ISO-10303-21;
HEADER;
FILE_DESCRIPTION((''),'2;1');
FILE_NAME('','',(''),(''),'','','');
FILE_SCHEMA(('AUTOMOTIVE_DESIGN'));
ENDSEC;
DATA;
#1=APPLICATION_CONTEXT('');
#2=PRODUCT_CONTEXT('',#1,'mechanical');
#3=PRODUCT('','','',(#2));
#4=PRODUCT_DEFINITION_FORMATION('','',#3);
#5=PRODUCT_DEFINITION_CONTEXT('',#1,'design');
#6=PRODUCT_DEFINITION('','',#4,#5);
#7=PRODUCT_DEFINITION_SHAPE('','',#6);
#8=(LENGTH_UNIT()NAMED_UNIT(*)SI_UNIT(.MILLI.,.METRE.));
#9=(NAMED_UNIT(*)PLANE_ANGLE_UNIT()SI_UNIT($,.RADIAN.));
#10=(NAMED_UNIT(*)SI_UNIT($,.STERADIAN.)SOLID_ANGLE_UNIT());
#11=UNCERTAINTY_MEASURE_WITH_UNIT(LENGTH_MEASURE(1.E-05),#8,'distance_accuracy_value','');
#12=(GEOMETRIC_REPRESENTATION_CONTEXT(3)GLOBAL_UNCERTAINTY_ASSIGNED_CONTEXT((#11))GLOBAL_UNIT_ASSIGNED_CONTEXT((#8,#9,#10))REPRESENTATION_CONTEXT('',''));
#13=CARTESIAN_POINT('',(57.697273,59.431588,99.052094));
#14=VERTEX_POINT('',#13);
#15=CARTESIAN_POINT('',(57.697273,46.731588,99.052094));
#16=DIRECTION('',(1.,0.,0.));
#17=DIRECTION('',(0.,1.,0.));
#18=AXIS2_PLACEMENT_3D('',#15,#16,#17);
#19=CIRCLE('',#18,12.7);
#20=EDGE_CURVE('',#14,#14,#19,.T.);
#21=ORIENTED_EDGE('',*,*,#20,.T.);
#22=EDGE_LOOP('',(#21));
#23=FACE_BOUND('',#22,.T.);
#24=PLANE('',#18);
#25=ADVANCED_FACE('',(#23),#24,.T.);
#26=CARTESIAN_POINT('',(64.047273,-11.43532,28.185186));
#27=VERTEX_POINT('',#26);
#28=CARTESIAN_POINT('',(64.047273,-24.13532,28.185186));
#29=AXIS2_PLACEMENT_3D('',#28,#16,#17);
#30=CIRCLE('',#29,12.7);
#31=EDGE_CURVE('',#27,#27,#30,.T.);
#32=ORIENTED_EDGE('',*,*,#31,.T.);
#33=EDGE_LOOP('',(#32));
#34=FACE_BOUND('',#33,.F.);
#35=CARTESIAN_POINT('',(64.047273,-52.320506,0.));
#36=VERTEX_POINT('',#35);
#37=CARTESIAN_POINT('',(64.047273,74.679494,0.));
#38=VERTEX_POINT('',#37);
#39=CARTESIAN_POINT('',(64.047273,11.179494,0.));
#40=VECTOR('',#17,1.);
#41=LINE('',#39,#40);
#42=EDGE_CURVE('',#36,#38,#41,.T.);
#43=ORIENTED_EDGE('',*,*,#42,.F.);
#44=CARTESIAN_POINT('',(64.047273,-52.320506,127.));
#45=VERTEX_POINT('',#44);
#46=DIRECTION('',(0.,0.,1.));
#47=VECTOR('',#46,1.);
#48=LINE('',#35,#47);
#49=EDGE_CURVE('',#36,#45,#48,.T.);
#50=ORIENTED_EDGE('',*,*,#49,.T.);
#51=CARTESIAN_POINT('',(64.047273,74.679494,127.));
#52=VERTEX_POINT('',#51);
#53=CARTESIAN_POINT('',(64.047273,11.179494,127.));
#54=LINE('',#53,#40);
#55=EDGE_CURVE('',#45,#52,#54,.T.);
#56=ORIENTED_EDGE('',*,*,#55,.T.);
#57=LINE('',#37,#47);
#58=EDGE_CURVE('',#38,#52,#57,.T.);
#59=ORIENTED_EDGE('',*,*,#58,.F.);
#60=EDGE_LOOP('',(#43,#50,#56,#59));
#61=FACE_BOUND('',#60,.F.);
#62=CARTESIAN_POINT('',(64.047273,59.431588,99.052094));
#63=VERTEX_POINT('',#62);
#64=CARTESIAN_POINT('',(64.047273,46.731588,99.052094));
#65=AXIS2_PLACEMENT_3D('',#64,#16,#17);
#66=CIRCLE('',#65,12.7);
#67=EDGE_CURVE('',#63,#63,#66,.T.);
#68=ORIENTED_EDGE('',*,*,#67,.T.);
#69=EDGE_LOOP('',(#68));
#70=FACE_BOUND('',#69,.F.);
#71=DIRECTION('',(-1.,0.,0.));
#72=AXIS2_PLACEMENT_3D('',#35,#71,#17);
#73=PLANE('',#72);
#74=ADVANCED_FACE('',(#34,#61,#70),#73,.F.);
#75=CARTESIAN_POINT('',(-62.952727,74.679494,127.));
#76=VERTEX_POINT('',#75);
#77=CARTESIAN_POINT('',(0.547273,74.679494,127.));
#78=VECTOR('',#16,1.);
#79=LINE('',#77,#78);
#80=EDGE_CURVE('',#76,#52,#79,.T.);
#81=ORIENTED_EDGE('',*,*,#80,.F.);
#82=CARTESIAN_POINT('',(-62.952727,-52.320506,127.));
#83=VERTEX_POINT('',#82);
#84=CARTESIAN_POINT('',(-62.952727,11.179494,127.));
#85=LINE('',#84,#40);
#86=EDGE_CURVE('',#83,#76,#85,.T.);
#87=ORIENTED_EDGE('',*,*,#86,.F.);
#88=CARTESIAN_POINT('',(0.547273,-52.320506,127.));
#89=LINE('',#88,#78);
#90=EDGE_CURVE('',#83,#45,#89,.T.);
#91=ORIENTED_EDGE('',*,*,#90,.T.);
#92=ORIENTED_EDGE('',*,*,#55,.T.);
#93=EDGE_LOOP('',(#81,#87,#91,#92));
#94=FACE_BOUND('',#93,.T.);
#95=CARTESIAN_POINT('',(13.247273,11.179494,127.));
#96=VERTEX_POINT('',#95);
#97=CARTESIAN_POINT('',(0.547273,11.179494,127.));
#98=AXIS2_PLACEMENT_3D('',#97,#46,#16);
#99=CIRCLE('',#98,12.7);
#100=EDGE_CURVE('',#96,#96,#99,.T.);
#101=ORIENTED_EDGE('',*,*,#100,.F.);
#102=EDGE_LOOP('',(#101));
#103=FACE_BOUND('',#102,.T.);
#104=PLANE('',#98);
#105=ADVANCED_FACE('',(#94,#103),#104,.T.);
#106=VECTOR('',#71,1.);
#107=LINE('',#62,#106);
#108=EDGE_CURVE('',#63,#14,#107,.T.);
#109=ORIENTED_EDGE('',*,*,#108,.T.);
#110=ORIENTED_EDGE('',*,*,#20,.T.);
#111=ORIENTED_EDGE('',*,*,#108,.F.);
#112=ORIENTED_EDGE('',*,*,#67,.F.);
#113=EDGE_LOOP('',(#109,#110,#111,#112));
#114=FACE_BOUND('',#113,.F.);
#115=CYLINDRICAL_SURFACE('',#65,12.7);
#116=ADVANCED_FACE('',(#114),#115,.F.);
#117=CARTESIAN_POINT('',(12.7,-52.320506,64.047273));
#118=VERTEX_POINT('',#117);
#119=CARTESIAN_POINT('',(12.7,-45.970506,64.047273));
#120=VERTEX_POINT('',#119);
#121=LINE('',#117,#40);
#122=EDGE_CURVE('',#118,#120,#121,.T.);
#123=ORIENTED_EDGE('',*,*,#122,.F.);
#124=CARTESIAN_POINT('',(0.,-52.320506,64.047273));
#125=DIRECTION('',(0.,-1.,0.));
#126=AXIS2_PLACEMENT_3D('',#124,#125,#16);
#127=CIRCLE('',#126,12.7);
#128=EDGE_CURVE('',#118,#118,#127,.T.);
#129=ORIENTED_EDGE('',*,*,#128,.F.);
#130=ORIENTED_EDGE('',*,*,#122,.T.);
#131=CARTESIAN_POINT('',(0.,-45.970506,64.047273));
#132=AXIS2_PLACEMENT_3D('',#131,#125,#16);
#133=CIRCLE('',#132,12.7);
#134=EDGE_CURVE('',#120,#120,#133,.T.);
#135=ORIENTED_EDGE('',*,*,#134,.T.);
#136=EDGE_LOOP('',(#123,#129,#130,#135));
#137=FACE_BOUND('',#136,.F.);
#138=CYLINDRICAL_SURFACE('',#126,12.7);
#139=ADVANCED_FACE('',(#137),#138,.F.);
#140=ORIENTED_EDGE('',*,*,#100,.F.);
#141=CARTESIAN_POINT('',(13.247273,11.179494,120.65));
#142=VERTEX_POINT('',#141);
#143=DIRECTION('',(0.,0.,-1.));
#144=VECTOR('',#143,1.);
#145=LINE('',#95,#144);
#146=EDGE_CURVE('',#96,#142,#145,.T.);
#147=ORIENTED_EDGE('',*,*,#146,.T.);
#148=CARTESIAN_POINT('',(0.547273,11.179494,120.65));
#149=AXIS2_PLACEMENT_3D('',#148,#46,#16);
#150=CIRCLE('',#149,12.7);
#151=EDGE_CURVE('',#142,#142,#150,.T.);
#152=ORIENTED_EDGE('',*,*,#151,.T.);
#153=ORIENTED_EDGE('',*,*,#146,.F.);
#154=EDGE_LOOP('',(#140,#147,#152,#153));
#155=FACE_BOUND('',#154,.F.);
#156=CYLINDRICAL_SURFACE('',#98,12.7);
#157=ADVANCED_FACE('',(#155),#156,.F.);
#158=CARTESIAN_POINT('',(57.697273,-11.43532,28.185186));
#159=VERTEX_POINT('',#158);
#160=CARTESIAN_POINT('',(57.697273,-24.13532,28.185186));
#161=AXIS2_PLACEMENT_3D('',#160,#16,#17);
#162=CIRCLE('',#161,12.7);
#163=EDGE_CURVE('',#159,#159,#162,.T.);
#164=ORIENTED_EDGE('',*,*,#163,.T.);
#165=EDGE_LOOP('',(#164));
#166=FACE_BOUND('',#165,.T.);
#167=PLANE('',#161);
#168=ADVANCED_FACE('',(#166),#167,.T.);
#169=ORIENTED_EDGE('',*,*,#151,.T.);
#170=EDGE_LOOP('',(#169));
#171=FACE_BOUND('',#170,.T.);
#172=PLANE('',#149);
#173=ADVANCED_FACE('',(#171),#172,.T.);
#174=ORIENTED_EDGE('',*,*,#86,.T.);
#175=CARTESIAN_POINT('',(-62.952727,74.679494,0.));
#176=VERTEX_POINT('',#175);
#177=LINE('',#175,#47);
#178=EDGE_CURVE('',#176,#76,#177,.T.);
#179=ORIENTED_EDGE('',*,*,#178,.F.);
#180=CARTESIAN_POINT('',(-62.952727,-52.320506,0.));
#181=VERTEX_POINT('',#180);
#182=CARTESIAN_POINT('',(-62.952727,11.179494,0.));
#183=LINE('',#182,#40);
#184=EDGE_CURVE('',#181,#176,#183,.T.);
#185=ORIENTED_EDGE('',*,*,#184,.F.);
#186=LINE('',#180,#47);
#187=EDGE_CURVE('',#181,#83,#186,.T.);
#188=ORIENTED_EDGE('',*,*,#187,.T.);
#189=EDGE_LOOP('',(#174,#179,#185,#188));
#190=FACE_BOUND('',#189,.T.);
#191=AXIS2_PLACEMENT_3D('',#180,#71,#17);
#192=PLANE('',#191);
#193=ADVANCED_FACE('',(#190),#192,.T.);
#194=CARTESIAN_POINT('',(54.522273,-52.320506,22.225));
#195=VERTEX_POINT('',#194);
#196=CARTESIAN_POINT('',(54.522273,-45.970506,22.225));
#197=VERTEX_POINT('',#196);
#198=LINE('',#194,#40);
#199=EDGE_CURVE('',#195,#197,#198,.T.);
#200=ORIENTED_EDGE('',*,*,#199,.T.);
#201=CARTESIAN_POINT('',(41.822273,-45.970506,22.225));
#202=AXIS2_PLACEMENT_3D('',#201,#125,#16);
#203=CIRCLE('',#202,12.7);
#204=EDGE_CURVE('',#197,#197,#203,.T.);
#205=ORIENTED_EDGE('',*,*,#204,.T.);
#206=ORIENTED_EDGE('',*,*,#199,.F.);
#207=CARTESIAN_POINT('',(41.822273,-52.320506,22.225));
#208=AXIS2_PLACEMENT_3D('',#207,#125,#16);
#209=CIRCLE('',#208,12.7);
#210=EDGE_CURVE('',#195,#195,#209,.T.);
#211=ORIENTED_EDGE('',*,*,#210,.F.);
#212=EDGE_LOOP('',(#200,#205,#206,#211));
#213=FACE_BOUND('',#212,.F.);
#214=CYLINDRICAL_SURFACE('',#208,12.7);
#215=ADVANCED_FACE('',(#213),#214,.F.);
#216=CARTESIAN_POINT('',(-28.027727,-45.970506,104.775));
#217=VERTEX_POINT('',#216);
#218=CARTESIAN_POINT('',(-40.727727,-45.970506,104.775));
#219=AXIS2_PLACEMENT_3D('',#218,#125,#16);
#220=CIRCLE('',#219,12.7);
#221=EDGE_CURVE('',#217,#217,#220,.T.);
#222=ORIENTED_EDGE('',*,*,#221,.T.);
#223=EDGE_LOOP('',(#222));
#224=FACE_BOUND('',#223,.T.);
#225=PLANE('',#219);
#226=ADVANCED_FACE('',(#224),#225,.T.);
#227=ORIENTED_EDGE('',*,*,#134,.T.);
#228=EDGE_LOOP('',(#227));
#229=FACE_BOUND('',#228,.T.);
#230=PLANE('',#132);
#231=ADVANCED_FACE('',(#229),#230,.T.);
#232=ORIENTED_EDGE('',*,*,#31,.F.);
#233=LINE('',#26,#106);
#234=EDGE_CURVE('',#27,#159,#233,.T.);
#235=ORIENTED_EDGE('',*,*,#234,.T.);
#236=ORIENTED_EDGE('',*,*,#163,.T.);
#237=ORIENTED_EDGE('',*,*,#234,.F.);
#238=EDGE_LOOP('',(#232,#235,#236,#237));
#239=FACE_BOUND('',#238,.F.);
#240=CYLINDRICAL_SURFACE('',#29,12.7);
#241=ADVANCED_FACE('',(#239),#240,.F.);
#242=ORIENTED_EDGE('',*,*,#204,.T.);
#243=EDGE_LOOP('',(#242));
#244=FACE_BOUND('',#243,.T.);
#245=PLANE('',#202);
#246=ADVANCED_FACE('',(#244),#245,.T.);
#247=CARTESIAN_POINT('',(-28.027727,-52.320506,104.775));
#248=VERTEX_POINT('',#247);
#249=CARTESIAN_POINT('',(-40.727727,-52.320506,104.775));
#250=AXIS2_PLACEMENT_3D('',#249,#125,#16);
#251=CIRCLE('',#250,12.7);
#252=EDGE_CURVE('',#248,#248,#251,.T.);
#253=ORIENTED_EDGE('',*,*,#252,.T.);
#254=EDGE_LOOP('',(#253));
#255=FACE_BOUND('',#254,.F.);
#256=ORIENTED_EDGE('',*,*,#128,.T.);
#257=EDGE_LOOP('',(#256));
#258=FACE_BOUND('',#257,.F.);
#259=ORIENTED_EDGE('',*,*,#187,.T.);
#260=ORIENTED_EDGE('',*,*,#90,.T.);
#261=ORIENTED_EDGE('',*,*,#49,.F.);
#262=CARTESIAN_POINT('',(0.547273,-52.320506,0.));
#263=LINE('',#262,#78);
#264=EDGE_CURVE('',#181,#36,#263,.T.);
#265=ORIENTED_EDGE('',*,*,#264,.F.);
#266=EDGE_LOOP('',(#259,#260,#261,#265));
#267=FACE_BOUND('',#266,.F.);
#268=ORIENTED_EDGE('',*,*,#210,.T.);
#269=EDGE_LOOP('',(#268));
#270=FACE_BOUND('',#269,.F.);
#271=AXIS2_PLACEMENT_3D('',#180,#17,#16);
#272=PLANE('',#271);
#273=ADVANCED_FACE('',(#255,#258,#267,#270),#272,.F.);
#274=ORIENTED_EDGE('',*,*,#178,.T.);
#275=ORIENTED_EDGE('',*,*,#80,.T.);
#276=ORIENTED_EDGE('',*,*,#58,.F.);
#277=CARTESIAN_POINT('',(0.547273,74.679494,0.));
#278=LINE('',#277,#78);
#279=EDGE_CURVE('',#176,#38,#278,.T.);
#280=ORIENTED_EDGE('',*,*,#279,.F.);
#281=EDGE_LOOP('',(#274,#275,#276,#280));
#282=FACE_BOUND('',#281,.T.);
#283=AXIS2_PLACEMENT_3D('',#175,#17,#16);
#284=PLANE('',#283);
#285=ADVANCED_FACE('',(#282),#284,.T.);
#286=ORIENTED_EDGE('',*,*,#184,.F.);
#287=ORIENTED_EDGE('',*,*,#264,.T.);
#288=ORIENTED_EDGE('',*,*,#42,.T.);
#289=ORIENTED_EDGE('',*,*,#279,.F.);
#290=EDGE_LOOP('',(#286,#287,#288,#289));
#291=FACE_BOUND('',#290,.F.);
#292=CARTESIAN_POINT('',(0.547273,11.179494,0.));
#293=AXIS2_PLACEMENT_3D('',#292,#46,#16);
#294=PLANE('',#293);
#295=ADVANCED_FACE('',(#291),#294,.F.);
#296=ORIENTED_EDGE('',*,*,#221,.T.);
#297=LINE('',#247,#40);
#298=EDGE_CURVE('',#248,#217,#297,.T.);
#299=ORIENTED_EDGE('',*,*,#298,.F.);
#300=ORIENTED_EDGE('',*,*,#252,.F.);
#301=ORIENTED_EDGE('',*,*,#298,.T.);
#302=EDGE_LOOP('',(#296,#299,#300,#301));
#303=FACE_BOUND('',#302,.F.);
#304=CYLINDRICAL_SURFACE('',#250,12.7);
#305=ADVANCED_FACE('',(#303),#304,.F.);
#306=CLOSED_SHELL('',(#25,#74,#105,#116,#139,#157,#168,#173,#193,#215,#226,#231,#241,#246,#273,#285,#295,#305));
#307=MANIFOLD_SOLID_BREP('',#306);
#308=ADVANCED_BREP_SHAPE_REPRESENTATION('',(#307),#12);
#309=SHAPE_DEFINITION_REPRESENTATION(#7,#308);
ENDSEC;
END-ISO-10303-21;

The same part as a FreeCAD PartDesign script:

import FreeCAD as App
import Part
import Sketcher

V = App.Vector
Q = App.Units.Quantity


def add_polygon(sketch, points):
    """Adds a closed chain of lines whose ends are joined by coincident constraints."""
    first, n = sketch.GeometryCount, len(points)
    for a, b in zip(points, points[1:] + points[:1]):
        sketch.addGeometry(Part.LineSegment(App.Vector(*a, 0), App.Vector(*b, 0)), False)
    for i in range(n):
        sketch.addConstraint(Sketcher.Constraint("Coincident", first + i, 2, first + (i + 1) % n, 1))

doc = App.newDocument("Part")
params = doc.addObject("Spreadsheet::Sheet", "Params")
for row, (alias, value) in enumerate([
    ("sketch1_width", "5 in"),
    ("pad1_length", "5 in"),
    ("sketch2_diameter", "1 in"),
    ("pocket1_length", "0.25 in"),
    ("sketch3_diameter", "1 in"),
    ("pad2_length", "0.25 in"),
    ("sketch4_diameter", "1 in"),
    ("pocket2_length", "0.25 in"),
    ("sketch5_diameter", "1 in"),
    ("pocket3_length", "0.25 in"),
], start=1):
    params.set(f"A{row}", alias)
    params.set(f"B{row}", "=" + value)
    params.setAlias(f"B{row}", alias)

body = doc.addObject("PartDesign::Body", "Body")

# Sketch on XY plane
sketch1 = body.newObject("Sketcher::SketchObject", "Sketch")
sketch1.AttachmentSupport = (doc.getObject("XY_Plane"), [""])
sketch1.MapMode = "FlatFace"
add_polygon(sketch1, [(-63, 75), (-63, -52), (64, -52), (64, 75)])  # lines 0-3
sketch1.addConstraint([
    Sketcher.Constraint("Vertical", 0),
    Sketcher.Constraint("Horizontal", 1),
    Sketcher.Constraint("Vertical", 2),
    Sketcher.Constraint("Horizontal", 3),
    Sketcher.Constraint("Equal", 3, 0),
    Sketcher.Constraint("DistanceX", 1, 1, 1, 2, Q("5 in")),
    Sketcher.Constraint("DistanceX", 0, 2, -1, 1, Q("62.952727 mm")),
    Sketcher.Constraint("DistanceY", 0, 2, -1, 1, Q("52.320506 mm")),
])
sketch1.setExpression("Constraints[9]", "Params.sketch1_width")
pad1 = body.newObject("PartDesign::Pad", "Pad")
pad1.Profile = sketch1
pad1.setExpression("Length", "Params.pad1_length")

# Sketch on XY plane
sketch2 = body.newObject("Sketcher::SketchObject", "Sketch001")
sketch2.AttachmentSupport = (doc.getObject("XY_Plane"), [""])
sketch2.MapMode = "FlatFace"
sketch2.AttachmentOffset = App.Placement(V(0, 0, 5 * 25.4), App.Rotation())
sketch2.addGeometry(Part.Circle(V(1, 11, 0), V(0, 0, 1), 13), False)
sketch2.addConstraint([
    Sketcher.Constraint("Diameter", 0, Q("1 in")),
    Sketcher.Constraint("DistanceX", -1, 1, 0, 3, Q("0.547273 mm")),
    Sketcher.Constraint("DistanceY", -1, 1, 0, 3, Q("11.179494 mm")),
])
sketch2.setExpression("Constraints[0]", "Params.sketch2_diameter")
pocket1 = body.newObject("PartDesign::Pocket", "Pocket")
pocket1.Profile = sketch2
pocket1.setExpression("Length", "Params.pocket1_length")

# Sketch on YZ plane
sketch3 = body.newObject("Sketcher::SketchObject", "Sketch002")
sketch3.AttachmentSupport = (doc.getObject("YZ_Plane"), [""])
sketch3.MapMode = "FlatFace"
sketch3.AttachmentOffset = App.Placement(V(0, 0, 64.047273), App.Rotation())
sketch3.addGeometry([
    Part.Circle(V(47, 99, 0), V(0, 0, 1), 13),
    Part.Circle(V(-24, 28, 0), V(0, 0, 1), 13),
], False)
sketch3.addConstraint([
    Sketcher.Constraint("Equal", 0, 1),
    Sketcher.Constraint("Diameter", 0, Q("1 in")),
    Sketcher.Constraint("DistanceX", -1, 1, 0, 3, Q("46.731588 mm")),
    Sketcher.Constraint("DistanceX", 1, 3, -1, 1, Q("24.13532 mm")),
    Sketcher.Constraint("DistanceY", -1, 1, 0, 3, Q("99.052094 mm")),
    Sketcher.Constraint("DistanceY", -1, 1, 1, 3, Q("28.185186 mm")),
])
sketch3.setExpression("Constraints[1]", "Params.sketch3_diameter")
pad2 = body.newObject("PartDesign::Pad", "Pad001")
pad2.Profile = sketch3
pad2.setExpression("Length", "Params.pad2_length")
pad2.Reversed = True

# Sketch on YZ plane
sketch4 = body.newObject("Sketcher::SketchObject", "Sketch003")
sketch4.AttachmentSupport = (doc.getObject("YZ_Plane"), [""])
sketch4.MapMode = "FlatFace"
sketch4.AttachmentOffset = App.Placement(V(0, 0, 64.047273), App.Rotation())
sketch4.addGeometry([
    Part.Circle(V(47, 99, 0), V(0, 0, 1), 13),
    Part.Circle(V(-24, 28, 0), V(0, 0, 1), 13),
], False)
sketch4.addConstraint([
    Sketcher.Constraint("Equal", 0, 1),
    Sketcher.Constraint("Diameter", 0, Q("1 in")),
    Sketcher.Constraint("DistanceX", -1, 1, 0, 3, Q("46.731588 mm")),
    Sketcher.Constraint("DistanceX", 1, 3, -1, 1, Q("24.13532 mm")),
    Sketcher.Constraint("DistanceY", -1, 1, 0, 3, Q("99.052094 mm")),
    Sketcher.Constraint("DistanceY", -1, 1, 1, 3, Q("28.185186 mm")),
])
sketch4.setExpression("Constraints[1]", "Params.sketch4_diameter")
pocket2 = body.newObject("PartDesign::Pocket", "Pocket001")
pocket2.Profile = sketch4
pocket2.setExpression("Length", "Params.pocket2_length")

# Sketch on XZ plane
sketch5 = body.newObject("Sketcher::SketchObject", "Sketch004")
sketch5.AttachmentSupport = (doc.getObject("XZ_Plane"), [""])
sketch5.MapMode = "FlatFace"
sketch5.AttachmentOffset = App.Placement(V(0, 0, 52.320506), App.Rotation())
sketch5.addGeometry([
    Part.Circle(V(-41, 105, 0), V(0, 0, 1), 13),
    Part.Circle(V(0, 64, 0), V(0, 0, 1), 13),
    Part.Circle(V(42, 22, 0), V(0, 0, 1), 13),
], False)
sketch5.addConstraint([
    Sketcher.Constraint("Equal", 0, 1),
    Sketcher.Constraint("Equal", 1, 2),
    Sketcher.Constraint("PointOnObject", 1, 3, -2),
    Sketcher.Constraint("Diameter", 0, Q("1 in")),
    Sketcher.Constraint("DistanceX", 0, 3, 2, 3, Q("3.25 in")),
    Sketcher.Constraint("DistanceY", 2, 3, 0, 3, Q("3.25 in")),
    Sketcher.Constraint("DistanceY", -1, 1, 0, 3, Q("4.125 in")),
    Sketcher.Constraint("DistanceX", 0, 3, -1, 1, Q("40.727727 mm")),
    Sketcher.Constraint("DistanceY", -1, 1, 1, 3, Q("64.047273 mm")),
])
sketch5.setExpression("Constraints[3]", "Params.sketch5_diameter")
pocket3 = body.newObject("PartDesign::Pocket", "Pocket002")
pocket3.Profile = sketch5
pocket3.setExpression("Length", "Params.pocket3_length")

doc.recompute()
